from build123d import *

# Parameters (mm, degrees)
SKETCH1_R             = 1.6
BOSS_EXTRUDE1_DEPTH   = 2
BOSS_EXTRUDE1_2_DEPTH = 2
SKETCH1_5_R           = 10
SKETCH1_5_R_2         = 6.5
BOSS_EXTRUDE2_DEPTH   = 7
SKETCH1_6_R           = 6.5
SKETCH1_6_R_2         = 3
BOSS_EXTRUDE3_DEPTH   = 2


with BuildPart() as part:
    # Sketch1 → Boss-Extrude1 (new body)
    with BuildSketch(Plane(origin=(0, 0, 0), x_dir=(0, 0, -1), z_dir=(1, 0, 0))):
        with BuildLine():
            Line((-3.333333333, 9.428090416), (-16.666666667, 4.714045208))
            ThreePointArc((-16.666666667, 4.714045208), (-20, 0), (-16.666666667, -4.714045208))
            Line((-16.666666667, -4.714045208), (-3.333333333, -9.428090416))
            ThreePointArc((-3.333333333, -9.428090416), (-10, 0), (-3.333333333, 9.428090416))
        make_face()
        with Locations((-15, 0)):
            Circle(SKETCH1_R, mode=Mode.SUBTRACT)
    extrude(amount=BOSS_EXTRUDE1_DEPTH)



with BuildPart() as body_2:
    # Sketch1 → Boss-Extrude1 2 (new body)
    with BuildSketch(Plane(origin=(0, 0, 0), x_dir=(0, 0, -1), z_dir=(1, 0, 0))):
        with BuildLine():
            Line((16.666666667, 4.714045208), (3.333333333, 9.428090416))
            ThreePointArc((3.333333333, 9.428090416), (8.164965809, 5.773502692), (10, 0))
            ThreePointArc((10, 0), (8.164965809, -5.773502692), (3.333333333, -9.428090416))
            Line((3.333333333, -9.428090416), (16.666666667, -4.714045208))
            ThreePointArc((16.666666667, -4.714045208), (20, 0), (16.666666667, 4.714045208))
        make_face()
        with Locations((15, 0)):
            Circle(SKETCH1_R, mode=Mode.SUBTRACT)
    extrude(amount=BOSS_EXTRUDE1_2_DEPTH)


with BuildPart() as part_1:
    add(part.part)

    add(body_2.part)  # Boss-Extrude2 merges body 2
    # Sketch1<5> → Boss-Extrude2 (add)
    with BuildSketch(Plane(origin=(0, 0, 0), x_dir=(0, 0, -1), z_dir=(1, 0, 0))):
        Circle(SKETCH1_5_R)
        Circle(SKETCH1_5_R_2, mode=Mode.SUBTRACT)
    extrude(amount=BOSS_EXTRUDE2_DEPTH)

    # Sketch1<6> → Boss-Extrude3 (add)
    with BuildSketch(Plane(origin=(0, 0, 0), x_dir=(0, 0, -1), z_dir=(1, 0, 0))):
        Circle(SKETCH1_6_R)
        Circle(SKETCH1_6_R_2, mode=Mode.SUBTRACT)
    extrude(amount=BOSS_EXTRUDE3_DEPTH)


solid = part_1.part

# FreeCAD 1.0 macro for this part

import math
import FreeCAD as App
import Part
import Sketcher

V = App.Vector

doc = App.newDocument("Part")
body = doc.addObject("PartDesign::Body", "Body")

# Sketch on YZ plane
sketch1 = body.newObject("Sketcher::SketchObject", "Sketch")
sketch1.AttachmentSupport = (doc.getObject("YZ_Plane"), [""])
sketch1.MapMode = "FlatFace"
sketch1.addGeometry([
    Part.LineSegment(V(9.42809, 3.333333, 0), V(4.714045, 16.666667, 0)),  # 0
    Part.ArcOfCircle(Part.Circle(V(0, 15, 0), V(0, 0, 1), 5), math.radians(19.471221), math.radians(160.528779)),  # 1
    Part.LineSegment(V(-4.714045, 16.666667, 0), V(-9.42809, 3.333333, 0)),  # 2
    Part.ArcOfCircle(Part.Circle(V(0, 0, 0), V(0, 0, 1), 10), math.radians(19.471221), math.radians(160.528779)),  # 3
    Part.Circle(V(0, 15, 0), V(0, 0, 1), 1.6),  # 4
], False)
sketch1.addConstraint([
    Sketcher.Constraint("Tangent", 0, 2, 1, 1),
    Sketcher.Constraint("Tangent", 1, 2, 2, 1),
    Sketcher.Constraint("Tangent", 2, 2, 3, 2),
    Sketcher.Constraint("Tangent", 3, 1, 0, 1),
    Sketcher.Constraint("Coincident", 3, 3, -1, 1),
    Sketcher.Constraint("Coincident", 4, 3, 1, 3),
    Sketcher.Constraint("PointOnObject", 1, 3, -2),
    Sketcher.Constraint("Radius", 1, 5.0),
    Sketcher.Constraint("Radius", 3, 10.0),
    Sketcher.Constraint("Diameter", 4, 3.2),
    Sketcher.Constraint("DistanceY", -1, 1, 1, 3, 15.0),
])
pad1 = body.newObject("PartDesign::Pad", "Pad")
pad1.Profile = sketch1
pad1.Length = 2
body2 = doc.addObject("PartDesign::Body", "Body001")

# Sketch on YZ plane
sketch2 = body2.newObject("Sketcher::SketchObject", "Sketch001")
sketch2.AttachmentSupport = (doc.getObject("YZ_Plane001"), [""])
sketch2.MapMode = "FlatFace"
sketch2.addGeometry([
    Part.LineSegment(V(4.714045, -16.666667, 0), V(9.42809, -3.333333, 0)),  # 0
    Part.ArcOfCircle(Part.Circle(V(0, 0, 0), V(0, 0, 1), 10), math.radians(-90), math.radians(-19.471221)),  # 1
    Part.ArcOfCircle(Part.Circle(V(0, 0, 0), V(0, 0, 1), 10), math.radians(-160.528779), math.radians(-90)),  # 2
    Part.LineSegment(V(-9.42809, -3.333333, 0), V(-4.714045, -16.666667, 0)),  # 3
    Part.ArcOfCircle(Part.Circle(V(0, -15, 0), V(0, 0, 1), 5), math.radians(-160.528779), math.radians(-19.471221)),  # 4
    Part.Circle(V(0, -15, 0), V(0, 0, 1), 1.6),  # 5
], False)
sketch2.addConstraint([
    Sketcher.Constraint("Tangent", 0, 2, 1, 2),
    Sketcher.Constraint("Tangent", 1, 1, 2, 2),
    Sketcher.Constraint("Tangent", 2, 1, 3, 1),
    Sketcher.Constraint("Tangent", 3, 2, 4, 1),
    Sketcher.Constraint("Tangent", 4, 2, 0, 1),
    Sketcher.Constraint("Coincident", 1, 3, -1, 1),
    Sketcher.Constraint("Coincident", 5, 3, 4, 3),
    Sketcher.Constraint("Equal", 1, 2),
    Sketcher.Constraint("PointOnObject", 4, 3, -2),
    Sketcher.Constraint("PointOnObject", 1, 1, -2),
    Sketcher.Constraint("Radius", 1, 10.0),
    Sketcher.Constraint("Radius", 4, 5.0),
    Sketcher.Constraint("Diameter", 5, 3.2),
    Sketcher.Constraint("DistanceY", 4, 3, -1, 1, 15.0),
])
pad2 = body2.newObject("PartDesign::Pad", "Pad001")
pad2.Profile = sketch2
pad2.Length = 2
body.AllowCompound = True
doc.recompute()

boolean = body.newObject("PartDesign::Boolean", "Boolean")
boolean.Type = "Fuse"
boolean.addObjects([body2])

# Sketch on YZ plane
sketch3 = body.newObject("Sketcher::SketchObject", "Sketch002")
sketch3.AttachmentSupport = (doc.getObject("YZ_Plane"), [""])
sketch3.MapMode = "FlatFace"
sketch3.addGeometry([
    Part.Circle(V(0, 0, 0), V(0, 0, 1), 10),
    Part.Circle(V(0, 0, 0), V(0, 0, 1), 6.5),
], False)
sketch3.addConstraint([
    Sketcher.Constraint("Coincident", 0, 3, -1, 1),
    Sketcher.Constraint("Coincident", 1, 3, -1, 1),
    Sketcher.Constraint("Diameter", 0, 20.0),
    Sketcher.Constraint("Diameter", 1, 13.0),
])
pad3 = body.newObject("PartDesign::Pad", "Pad002")
pad3.Profile = sketch3
pad3.Length = 7

# Sketch on YZ plane
sketch4 = body.newObject("Sketcher::SketchObject", "Sketch003")
sketch4.AttachmentSupport = (doc.getObject("YZ_Plane"), [""])
sketch4.MapMode = "FlatFace"
sketch4.addGeometry([
    Part.Circle(V(0, 0, 0), V(0, 0, 1), 6.5),
    Part.Circle(V(0, 0, 0), V(0, 0, 1), 3),
], False)
sketch4.addConstraint([
    Sketcher.Constraint("Coincident", 0, 3, -1, 1),
    Sketcher.Constraint("Coincident", 1, 3, -1, 1),
    Sketcher.Constraint("Diameter", 0, 13.0),
    Sketcher.Constraint("Diameter", 1, 6.0),
])
pad4 = body.newObject("PartDesign::Pad", "Pad003")
pad4.Profile = sketch4
pad4.Length = 2

doc.recompute()
